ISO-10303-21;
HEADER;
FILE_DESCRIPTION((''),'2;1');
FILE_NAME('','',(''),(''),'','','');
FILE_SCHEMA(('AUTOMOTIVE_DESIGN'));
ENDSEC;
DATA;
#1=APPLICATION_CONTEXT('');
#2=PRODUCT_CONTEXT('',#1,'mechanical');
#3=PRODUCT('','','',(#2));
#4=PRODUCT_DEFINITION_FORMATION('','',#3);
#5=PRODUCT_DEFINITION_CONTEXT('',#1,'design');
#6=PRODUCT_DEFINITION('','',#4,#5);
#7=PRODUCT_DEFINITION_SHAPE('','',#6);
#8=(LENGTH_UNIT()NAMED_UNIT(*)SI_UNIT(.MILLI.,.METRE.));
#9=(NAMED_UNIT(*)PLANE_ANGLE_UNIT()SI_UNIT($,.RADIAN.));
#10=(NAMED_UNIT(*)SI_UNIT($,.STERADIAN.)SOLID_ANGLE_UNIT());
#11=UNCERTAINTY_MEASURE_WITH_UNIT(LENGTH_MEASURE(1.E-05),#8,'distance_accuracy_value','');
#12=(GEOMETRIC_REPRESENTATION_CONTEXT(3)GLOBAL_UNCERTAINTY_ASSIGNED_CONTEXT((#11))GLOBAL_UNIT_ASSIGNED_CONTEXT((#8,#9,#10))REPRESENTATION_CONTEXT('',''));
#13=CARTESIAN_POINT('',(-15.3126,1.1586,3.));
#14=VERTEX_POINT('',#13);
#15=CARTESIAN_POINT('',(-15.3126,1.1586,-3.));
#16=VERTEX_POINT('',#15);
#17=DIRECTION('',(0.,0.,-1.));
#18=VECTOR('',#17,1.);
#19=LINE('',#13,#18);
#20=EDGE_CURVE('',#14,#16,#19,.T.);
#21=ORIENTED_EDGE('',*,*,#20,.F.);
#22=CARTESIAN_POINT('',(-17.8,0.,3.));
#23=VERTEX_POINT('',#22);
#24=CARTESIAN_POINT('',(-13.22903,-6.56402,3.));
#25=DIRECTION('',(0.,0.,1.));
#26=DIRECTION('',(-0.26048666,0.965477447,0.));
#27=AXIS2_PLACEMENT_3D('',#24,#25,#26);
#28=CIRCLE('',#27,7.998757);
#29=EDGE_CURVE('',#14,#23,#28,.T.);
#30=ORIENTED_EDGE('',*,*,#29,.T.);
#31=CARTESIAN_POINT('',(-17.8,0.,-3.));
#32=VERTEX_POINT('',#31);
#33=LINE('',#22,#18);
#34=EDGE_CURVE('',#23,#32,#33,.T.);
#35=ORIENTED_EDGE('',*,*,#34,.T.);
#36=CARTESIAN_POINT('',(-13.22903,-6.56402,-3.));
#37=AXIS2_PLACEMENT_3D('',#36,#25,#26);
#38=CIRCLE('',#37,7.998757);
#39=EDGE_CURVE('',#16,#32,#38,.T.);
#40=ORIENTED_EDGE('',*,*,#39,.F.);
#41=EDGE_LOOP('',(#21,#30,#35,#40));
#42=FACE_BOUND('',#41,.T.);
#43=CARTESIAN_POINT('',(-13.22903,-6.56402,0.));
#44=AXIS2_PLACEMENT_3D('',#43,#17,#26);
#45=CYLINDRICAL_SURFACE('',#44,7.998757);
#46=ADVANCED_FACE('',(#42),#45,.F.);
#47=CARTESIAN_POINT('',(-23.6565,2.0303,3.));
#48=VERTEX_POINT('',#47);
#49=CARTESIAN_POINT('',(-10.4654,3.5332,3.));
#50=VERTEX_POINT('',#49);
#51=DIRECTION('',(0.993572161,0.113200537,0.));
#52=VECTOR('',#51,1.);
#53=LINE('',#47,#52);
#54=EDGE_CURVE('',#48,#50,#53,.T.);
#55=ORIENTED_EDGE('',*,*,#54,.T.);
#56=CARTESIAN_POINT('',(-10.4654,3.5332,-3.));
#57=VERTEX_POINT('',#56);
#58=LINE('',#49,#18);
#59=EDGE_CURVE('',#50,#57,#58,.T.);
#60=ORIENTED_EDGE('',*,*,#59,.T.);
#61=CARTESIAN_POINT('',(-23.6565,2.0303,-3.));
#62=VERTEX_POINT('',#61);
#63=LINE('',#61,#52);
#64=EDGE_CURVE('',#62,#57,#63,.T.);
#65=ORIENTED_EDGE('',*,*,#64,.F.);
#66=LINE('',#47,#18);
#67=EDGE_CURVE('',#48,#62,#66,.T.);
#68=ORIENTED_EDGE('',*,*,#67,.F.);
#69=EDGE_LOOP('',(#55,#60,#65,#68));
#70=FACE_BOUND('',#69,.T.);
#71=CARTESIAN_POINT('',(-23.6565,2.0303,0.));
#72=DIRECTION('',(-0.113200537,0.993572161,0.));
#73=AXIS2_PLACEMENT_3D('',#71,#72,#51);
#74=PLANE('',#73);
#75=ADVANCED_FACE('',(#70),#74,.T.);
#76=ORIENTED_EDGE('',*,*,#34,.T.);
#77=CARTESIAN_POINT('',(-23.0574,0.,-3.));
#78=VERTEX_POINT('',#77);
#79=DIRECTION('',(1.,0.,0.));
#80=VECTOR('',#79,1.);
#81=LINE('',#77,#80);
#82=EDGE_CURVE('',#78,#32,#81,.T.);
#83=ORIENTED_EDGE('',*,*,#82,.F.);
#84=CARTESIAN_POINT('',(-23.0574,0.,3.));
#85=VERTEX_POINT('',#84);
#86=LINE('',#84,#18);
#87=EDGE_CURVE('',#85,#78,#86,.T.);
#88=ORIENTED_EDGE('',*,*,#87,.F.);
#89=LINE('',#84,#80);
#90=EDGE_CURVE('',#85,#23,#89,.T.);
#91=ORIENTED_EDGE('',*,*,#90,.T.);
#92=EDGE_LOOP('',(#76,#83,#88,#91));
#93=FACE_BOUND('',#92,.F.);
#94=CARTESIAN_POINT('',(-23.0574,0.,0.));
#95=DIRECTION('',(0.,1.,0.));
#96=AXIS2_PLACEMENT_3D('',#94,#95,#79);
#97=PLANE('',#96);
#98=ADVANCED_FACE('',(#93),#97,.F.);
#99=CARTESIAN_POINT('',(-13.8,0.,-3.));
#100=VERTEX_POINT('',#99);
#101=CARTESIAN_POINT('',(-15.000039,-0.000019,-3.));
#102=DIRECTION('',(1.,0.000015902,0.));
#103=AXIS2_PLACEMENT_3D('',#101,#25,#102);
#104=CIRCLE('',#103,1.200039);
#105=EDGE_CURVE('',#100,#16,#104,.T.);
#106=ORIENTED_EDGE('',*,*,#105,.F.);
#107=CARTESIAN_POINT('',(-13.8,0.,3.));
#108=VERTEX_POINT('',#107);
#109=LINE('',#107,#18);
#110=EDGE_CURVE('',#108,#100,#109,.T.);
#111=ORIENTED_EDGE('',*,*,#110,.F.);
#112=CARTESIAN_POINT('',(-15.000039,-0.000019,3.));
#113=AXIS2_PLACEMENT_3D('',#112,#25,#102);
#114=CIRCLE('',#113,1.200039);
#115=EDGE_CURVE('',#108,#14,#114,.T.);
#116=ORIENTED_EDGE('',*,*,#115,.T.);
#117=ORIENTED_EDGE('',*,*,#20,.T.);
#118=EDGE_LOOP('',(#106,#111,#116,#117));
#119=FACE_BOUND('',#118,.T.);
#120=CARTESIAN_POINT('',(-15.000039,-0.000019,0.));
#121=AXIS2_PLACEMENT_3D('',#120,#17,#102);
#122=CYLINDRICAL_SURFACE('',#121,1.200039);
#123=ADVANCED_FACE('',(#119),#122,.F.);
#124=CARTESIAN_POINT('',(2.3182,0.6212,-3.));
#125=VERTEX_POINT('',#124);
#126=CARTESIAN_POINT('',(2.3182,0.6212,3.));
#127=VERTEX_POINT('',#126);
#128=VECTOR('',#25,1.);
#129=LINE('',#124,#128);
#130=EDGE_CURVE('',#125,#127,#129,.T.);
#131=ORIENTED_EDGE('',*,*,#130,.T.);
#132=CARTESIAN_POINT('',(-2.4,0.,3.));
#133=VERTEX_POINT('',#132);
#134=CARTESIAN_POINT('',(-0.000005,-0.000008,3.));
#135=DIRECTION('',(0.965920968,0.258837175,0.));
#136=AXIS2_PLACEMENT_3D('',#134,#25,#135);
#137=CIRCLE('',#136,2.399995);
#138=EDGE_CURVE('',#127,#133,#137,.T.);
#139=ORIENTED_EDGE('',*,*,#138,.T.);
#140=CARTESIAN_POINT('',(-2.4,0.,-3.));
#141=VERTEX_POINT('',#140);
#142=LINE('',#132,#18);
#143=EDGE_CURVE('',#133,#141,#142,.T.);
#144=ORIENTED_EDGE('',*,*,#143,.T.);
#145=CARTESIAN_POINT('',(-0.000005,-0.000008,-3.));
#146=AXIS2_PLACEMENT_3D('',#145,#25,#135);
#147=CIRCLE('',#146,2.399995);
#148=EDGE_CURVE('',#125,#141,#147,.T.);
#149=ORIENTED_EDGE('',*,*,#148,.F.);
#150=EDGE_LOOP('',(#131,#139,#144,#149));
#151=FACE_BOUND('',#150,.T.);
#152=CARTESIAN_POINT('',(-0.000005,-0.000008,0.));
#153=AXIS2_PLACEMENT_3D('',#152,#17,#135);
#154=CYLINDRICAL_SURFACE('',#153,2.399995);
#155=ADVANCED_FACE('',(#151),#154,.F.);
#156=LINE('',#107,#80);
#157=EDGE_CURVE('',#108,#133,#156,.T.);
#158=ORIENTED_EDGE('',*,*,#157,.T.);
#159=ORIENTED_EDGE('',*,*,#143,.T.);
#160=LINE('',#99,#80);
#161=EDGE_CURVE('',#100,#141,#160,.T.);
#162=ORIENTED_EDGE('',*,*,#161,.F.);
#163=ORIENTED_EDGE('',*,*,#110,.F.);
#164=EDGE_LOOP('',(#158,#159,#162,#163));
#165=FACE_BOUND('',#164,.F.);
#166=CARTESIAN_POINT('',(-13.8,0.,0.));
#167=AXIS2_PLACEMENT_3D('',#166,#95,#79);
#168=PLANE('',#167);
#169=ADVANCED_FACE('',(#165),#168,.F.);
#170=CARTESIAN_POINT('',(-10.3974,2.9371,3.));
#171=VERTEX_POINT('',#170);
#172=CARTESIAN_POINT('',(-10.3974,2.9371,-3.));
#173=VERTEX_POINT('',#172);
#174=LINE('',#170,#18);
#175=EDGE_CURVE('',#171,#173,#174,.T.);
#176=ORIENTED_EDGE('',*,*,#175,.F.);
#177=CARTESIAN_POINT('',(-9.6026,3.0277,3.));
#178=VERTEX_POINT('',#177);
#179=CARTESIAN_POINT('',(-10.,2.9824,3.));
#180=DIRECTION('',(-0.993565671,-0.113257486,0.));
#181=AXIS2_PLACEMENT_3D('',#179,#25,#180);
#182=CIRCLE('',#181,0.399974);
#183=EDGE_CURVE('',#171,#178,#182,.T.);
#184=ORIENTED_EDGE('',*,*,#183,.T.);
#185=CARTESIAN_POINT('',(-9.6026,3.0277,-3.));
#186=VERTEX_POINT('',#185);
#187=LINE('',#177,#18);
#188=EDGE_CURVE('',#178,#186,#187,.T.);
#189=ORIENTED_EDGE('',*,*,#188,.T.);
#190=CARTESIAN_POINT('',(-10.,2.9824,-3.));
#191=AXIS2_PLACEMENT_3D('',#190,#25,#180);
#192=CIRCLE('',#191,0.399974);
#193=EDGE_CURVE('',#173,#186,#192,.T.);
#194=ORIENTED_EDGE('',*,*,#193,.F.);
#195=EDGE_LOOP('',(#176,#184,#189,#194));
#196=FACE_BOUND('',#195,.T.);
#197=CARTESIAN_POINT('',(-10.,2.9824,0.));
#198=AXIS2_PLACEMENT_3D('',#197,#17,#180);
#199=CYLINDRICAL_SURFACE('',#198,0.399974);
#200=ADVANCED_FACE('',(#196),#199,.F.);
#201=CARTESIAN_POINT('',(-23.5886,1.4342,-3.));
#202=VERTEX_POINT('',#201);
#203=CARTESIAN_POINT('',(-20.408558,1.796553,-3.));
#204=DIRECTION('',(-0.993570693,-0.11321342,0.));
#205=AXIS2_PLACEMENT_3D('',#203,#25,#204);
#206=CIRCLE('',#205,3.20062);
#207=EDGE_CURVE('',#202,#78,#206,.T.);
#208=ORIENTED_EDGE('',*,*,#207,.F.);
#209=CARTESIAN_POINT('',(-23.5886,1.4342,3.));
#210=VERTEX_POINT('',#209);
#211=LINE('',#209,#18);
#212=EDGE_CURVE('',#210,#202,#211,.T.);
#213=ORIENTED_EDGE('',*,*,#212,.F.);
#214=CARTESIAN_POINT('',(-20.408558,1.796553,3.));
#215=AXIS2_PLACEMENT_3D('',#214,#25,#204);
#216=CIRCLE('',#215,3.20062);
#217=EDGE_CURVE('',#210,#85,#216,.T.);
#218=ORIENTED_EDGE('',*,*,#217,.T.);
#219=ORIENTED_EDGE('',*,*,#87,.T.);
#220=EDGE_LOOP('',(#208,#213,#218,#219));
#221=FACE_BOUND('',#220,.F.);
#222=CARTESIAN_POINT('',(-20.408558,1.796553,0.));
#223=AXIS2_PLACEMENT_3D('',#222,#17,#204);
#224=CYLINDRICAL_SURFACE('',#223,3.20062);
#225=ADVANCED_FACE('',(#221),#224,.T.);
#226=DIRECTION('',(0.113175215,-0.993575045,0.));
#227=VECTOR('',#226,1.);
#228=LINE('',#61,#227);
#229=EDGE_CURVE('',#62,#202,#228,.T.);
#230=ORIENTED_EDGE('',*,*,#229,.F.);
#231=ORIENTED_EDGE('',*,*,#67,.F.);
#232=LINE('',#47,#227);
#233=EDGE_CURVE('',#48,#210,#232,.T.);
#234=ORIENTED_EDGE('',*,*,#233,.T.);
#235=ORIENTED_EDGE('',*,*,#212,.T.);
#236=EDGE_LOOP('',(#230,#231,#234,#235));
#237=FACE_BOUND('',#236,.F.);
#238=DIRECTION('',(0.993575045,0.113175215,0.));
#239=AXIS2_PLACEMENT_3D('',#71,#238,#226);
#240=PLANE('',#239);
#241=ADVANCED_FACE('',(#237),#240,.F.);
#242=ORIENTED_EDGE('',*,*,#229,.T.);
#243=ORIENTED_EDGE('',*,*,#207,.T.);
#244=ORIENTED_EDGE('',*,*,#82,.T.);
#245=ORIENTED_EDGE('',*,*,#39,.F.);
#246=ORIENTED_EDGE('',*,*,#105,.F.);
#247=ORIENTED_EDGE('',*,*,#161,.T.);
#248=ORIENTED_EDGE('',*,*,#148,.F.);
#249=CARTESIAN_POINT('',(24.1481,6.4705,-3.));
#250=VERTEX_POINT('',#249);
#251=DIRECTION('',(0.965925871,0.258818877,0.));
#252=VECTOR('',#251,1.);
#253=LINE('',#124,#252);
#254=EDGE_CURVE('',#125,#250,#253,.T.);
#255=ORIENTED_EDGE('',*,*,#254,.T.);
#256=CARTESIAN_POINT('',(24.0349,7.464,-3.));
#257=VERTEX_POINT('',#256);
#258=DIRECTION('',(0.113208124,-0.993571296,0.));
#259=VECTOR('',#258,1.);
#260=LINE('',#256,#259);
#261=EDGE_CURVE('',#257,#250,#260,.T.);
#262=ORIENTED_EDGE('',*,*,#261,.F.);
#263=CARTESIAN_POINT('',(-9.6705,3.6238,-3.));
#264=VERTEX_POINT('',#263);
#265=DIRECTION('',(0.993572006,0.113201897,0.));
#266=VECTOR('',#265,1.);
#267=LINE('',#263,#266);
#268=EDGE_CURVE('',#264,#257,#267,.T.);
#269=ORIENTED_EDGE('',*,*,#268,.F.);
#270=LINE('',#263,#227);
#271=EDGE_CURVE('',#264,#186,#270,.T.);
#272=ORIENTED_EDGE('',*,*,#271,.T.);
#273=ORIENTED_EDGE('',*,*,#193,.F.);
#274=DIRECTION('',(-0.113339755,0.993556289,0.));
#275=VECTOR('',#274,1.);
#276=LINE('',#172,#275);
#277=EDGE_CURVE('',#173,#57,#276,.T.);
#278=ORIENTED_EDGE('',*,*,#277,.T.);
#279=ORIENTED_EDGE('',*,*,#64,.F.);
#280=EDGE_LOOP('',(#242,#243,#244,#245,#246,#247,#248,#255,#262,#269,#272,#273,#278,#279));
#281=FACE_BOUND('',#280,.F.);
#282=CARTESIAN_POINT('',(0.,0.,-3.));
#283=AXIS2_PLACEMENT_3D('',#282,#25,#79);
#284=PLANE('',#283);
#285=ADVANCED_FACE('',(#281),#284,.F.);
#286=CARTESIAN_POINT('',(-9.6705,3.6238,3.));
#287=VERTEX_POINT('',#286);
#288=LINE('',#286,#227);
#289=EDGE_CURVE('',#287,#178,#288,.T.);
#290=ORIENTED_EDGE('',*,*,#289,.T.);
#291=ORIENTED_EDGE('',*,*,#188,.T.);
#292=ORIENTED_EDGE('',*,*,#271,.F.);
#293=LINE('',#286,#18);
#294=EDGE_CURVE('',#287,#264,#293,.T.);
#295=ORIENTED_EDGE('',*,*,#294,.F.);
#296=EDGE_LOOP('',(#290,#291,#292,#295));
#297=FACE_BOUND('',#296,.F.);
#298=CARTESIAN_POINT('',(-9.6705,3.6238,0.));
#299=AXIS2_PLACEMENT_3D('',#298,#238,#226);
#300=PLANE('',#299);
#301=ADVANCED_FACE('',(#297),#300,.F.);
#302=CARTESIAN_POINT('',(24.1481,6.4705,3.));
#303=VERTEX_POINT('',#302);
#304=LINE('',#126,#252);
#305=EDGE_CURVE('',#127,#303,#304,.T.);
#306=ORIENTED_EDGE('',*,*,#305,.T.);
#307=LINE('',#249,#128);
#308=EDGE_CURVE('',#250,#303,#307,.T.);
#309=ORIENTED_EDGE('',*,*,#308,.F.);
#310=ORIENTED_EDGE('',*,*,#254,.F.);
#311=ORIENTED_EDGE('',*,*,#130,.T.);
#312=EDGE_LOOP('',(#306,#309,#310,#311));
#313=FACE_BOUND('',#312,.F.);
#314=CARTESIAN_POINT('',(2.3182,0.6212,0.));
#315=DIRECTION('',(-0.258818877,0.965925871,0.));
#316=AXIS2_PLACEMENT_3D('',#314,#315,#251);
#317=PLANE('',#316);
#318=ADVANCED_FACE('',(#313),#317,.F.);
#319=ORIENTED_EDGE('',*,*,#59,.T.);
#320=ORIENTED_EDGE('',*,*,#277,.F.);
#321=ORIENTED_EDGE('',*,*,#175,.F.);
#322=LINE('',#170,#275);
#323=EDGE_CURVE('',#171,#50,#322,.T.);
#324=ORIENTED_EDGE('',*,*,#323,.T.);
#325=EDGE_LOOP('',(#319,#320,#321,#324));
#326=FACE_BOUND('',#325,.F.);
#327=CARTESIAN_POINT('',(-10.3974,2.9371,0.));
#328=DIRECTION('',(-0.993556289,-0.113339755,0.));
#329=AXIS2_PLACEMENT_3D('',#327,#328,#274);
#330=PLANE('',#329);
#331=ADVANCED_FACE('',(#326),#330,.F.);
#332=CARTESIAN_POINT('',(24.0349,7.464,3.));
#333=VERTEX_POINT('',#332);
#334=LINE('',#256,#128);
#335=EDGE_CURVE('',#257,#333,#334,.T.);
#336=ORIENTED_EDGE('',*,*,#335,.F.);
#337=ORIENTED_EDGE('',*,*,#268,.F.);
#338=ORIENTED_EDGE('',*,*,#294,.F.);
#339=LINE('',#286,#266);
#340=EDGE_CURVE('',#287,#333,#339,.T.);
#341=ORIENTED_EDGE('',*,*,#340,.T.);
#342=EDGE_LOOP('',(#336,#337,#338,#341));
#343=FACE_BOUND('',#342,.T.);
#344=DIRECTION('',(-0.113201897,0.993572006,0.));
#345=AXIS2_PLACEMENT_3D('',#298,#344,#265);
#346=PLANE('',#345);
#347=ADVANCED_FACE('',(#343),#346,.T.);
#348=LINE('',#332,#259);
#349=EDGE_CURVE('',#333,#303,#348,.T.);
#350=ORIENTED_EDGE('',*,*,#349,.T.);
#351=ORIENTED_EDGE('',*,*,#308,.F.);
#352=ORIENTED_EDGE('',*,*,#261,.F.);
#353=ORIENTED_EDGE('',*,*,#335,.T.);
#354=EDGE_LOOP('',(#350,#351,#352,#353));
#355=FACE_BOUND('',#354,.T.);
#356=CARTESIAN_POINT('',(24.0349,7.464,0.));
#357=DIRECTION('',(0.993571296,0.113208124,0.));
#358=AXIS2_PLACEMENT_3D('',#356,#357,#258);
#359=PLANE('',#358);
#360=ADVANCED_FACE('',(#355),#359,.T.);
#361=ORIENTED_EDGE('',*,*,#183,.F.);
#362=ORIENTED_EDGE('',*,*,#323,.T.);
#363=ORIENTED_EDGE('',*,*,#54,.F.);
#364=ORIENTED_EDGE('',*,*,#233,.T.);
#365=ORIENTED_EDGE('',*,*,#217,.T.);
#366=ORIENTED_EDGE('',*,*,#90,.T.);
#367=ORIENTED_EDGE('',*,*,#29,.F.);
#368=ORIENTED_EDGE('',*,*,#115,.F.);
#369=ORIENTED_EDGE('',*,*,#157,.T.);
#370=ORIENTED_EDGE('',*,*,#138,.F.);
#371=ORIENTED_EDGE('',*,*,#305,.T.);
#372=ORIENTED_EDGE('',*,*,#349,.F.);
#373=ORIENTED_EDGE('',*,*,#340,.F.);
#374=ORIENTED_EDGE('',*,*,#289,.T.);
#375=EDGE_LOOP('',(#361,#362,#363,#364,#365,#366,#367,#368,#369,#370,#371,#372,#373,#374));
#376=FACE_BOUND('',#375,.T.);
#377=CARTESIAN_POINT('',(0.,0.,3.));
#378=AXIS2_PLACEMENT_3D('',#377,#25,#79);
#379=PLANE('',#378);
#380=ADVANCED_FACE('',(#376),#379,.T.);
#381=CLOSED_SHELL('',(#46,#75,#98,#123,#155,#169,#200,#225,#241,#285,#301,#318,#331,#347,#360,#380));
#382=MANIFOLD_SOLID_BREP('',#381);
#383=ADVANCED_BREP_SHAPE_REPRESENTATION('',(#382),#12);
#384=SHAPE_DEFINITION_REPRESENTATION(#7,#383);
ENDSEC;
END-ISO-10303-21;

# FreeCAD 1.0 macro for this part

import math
import FreeCAD as App
import Part
import Sketcher

V = App.Vector
Q = App.Units.Quantity

doc = App.newDocument("Part")
body = doc.addObject("PartDesign::Body", "Body")

sketch1 = body.newObject("Sketcher::SketchObject", "Sketch")
sketch1.AttachmentSupport = (doc.getObject("XY_Plane"), [""])
sketch1.MapMode = "FlatFace"
sketch1.addGeometry([
    Part.ArcOfCircle(Part.Circle(V(0, 0, 0), V(0, 0, 1), 2.4), math.radians(15), math.radians(180)),
    Part.LineSegment(V(2.32, 0.62, 0), V(24.15, 6.47, 0)),
    Part.LineSegment(V(24.15, 6.47, 0), V(24.03, 7.46, 0)),
    Part.LineSegment(V(24.03, 7.46, 0), V(-9.67, 3.62, 0)),
    Part.LineSegment(V(-9.67, 3.62, 0), V(-9.6, 3.03, 0)),
    Part.ArcOfCircle(Part.Circle(V(-10, 2.98, 0), V(0, 0, 1), 0.4), math.radians(-173), math.radians(7)),
    Part.LineSegment(V(-10.4, 2.94, 0), V(-10.47, 3.53, 0)),
    Part.LineSegment(V(-10.47, 3.53, 0), V(-23.66, 2.03, 0)),
    Part.LineSegment(V(-23.66, 2.03, 0), V(-23.59, 1.43, 0)),
    Part.ArcOfCircle(Part.Circle(V(-20.41, 1.8, 0), V(0, 0, 1), 3.2), math.radians(-174), math.radians(-146)),
    Part.LineSegment(V(-23.06, 0, 0), V(-17.8, 0, 0)),
    Part.ArcOfCircle(Part.Circle(V(-13.23, -6.56, 0), V(0, 0, 1), 8), math.radians(105.1), math.radians(124.85)),
    Part.ArcOfCircle(Part.Circle(V(-15, 0, 0), V(0, 0, 1), 1.2), math.radians(0), math.radians(105)),
    Part.LineSegment(V(-13.8, 0, 0), V(-2.4, 0, 0)),
], False)
sketch1.addConstraint([
    Sketcher.Constraint("Coincident", 0, 1, 1, 1),
    Sketcher.Constraint("Coincident", 1, 2, 2, 1),
    Sketcher.Constraint("Coincident", 2, 2, 3, 1),
    Sketcher.Constraint("Coincident", 3, 2, 4, 1),
    Sketcher.Constraint("Tangent", 4, 2, 5, 2),
    Sketcher.Constraint("Tangent", 5, 1, 6, 1),
    Sketcher.Constraint("Coincident", 6, 2, 7, 1),
    Sketcher.Constraint("Coincident", 7, 2, 8, 1),
    Sketcher.Constraint("Tangent", 8, 2, 9, 1),
    Sketcher.Constraint("Coincident", 9, 2, 10, 1),
    Sketcher.Constraint("Coincident", 10, 2, 11, 2),
    Sketcher.Constraint("Tangent", 11, 1, 12, 2),
    Sketcher.Constraint("Coincident", 12, 1, 13, 1),
    Sketcher.Constraint("Coincident", 13, 2, 0, 2),
    Sketcher.Constraint("Horizontal", 10),
    Sketcher.Constraint("Horizontal", 13),
    Sketcher.Constraint("Coincident", 0, 3, -1, 1),
    Sketcher.Constraint("PointOnObject", 12, 3, -1),
    Sketcher.Constraint("PointOnObject", 9, 2, -1),
    Sketcher.Constraint("PointOnObject", 12, 1, -1),
    Sketcher.Constraint("Perpendicular", 2, 3),
    Sketcher.Constraint("Perpendicular", 3, 4),
    Sketcher.Constraint("Parallel", 4, 6),
    Sketcher.Constraint("Perpendicular", 6, 7),
    Sketcher.Constraint("Perpendicular", 7, 8),
    Sketcher.Constraint("Equal", 4, 6),
    Sketcher.Constraint("Equal", 6, 8),
    Sketcher.Constraint("Radius", 0, 2.4),
    Sketcher.Constraint("Radius", 5, 0.4),
    Sketcher.Constraint("Radius", 12, 1.2),
    Sketcher.Constraint("Angle", 1, Q("15 deg")),
    Sketcher.Constraint("Distance", 2, 1.0),
    Sketcher.Constraint("DistanceX", 12, 3, -1, 1, 15.0),
    Sketcher.Constraint("DistanceX", 10, 2, 12, 1, 4.0),
    Sketcher.Constraint("Distance", 4, 0.6),
    Sketcher.Constraint("Radius", 9, 3.2),
    Sketcher.Constraint("DistanceX", 5, 3, -1, 1, 10.0),
    Sketcher.Constraint("Angle", 2, Q("96.5003 deg")),
    Sketcher.Constraint("Distance", 1, 22.6),
    Sketcher.Constraint("Radius", 11, 7.9988),
    Sketcher.Constraint("DistanceX", 10, 1, 10, 2, 5.2574),
    Sketcher.Constraint("DistanceX", -1, 1, 1, 2, 24.148),
])
pad1 = body.newObject("PartDesign::Pad", "Pad")
pad1.Profile = sketch1
pad1.Length = 6
pad1.Midplane = True

doc.recompute()
